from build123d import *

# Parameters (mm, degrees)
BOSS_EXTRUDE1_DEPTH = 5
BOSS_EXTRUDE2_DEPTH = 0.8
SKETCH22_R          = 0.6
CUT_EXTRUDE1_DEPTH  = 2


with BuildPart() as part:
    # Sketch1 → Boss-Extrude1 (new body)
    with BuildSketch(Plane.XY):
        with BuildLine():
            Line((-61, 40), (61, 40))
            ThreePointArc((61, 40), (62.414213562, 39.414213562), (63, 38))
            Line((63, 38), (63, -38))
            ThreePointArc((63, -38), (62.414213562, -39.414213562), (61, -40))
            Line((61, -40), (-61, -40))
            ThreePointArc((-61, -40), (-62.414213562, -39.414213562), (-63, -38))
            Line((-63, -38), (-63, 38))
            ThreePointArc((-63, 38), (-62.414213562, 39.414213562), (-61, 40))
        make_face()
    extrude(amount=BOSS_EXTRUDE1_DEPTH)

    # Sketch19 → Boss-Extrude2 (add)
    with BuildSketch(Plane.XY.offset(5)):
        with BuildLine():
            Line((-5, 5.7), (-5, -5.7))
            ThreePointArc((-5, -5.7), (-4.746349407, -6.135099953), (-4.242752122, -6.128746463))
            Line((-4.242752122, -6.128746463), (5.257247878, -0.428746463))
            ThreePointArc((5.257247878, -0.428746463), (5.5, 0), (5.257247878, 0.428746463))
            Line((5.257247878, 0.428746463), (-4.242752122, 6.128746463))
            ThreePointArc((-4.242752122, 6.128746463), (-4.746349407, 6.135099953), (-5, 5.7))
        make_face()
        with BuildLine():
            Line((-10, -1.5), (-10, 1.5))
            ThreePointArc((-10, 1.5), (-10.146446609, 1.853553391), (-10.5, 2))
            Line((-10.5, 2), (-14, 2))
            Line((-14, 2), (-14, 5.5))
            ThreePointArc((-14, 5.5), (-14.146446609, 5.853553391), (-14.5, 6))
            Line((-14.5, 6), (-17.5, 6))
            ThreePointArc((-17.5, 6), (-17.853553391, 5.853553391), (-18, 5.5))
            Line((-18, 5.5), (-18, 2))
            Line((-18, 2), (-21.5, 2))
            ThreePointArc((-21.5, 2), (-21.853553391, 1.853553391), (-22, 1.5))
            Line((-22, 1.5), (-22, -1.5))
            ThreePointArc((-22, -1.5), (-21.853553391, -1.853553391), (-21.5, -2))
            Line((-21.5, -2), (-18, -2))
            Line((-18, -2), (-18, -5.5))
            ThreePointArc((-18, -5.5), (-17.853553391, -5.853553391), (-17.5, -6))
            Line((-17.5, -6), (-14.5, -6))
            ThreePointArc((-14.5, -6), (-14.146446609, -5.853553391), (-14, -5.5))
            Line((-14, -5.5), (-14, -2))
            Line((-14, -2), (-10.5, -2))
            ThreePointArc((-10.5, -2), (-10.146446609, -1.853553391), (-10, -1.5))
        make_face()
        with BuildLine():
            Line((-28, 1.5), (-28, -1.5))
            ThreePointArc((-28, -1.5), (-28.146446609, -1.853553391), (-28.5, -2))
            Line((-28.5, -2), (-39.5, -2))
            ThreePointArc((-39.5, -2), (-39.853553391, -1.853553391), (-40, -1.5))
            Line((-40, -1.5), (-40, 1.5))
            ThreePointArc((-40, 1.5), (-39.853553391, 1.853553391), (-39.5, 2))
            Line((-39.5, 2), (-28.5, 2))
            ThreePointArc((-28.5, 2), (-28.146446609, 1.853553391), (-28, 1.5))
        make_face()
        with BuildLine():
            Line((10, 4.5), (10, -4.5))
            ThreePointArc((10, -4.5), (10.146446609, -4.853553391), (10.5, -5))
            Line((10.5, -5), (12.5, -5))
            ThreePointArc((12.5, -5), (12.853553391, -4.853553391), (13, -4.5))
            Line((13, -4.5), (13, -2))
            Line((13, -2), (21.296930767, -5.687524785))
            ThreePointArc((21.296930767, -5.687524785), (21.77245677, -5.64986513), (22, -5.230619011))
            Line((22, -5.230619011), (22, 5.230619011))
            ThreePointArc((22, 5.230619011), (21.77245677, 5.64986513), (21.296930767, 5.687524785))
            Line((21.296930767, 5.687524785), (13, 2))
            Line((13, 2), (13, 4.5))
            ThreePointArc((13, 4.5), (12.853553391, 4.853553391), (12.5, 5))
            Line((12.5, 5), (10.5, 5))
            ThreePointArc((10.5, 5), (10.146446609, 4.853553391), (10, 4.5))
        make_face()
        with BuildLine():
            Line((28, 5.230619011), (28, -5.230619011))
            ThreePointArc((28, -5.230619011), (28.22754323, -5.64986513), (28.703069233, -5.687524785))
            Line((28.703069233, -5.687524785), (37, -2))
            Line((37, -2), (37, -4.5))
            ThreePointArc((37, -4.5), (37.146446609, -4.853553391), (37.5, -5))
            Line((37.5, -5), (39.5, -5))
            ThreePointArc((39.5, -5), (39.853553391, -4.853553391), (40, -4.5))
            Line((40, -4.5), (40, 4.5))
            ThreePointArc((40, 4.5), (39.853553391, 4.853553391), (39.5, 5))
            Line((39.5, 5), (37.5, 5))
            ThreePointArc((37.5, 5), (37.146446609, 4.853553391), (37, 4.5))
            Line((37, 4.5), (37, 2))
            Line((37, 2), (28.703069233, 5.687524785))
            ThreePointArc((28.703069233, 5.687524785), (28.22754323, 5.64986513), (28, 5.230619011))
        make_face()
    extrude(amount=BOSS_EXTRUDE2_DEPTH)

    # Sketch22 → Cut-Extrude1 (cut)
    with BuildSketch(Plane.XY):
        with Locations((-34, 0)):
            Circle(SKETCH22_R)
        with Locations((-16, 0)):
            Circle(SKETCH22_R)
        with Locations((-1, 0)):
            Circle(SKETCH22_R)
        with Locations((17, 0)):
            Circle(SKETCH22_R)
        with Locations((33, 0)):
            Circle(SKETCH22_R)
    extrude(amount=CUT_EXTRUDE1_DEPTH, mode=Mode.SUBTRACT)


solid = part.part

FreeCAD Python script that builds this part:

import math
import FreeCAD as App
import Part
import Sketcher

doc = App.newDocument("Part")
body = doc.addObject("PartDesign::Body", "Body")

sketch1 = body.newObject("Sketcher::SketchObject", "Sketch")
sketch1.AttachmentSupport = (doc.getObject("XY_Plane"), [""])
sketch1.MapMode = "FlatFace"
sketch1.addGeometry([
    Part.LineSegment(App.Vector(61, 40, 0), App.Vector(-61, 40, 0)),
    Part.ArcOfCircle(Part.Circle(App.Vector(-61, 38, 0), App.Vector(0, 0, 1), 2), math.radians(90), math.radians(180)),
    Part.LineSegment(App.Vector(-63, 38, 0), App.Vector(-63, -38, 0)),
    Part.ArcOfCircle(Part.Circle(App.Vector(-61, -38, 0), App.Vector(0, 0, 1), 2), math.radians(-180), math.radians(-90)),
    Part.LineSegment(App.Vector(-61, -40, 0), App.Vector(61, -40, 0)),
    Part.ArcOfCircle(Part.Circle(App.Vector(61, -38, 0), App.Vector(0, 0, 1), 2), math.radians(-90), math.radians(0)),
    Part.LineSegment(App.Vector(63, -38, 0), App.Vector(63, 38, 0)),
    Part.ArcOfCircle(Part.Circle(App.Vector(61, 38, 0), App.Vector(0, 0, 1), 2), math.radians(0), math.radians(90)),
], False)
sketch1.addConstraint([
    Sketcher.Constraint("Tangent", 0, 2, 1, 1),
    Sketcher.Constraint("Tangent", 1, 2, 2, 1),
    Sketcher.Constraint("Tangent", 2, 2, 3, 1),
    Sketcher.Constraint("Tangent", 3, 2, 4, 1),
    Sketcher.Constraint("Tangent", 4, 2, 5, 1),
    Sketcher.Constraint("Tangent", 5, 2, 6, 1),
    Sketcher.Constraint("Tangent", 6, 2, 7, 1),
    Sketcher.Constraint("Tangent", 7, 2, 0, 1),
    Sketcher.Constraint("Horizontal", 0),
    Sketcher.Constraint("Vertical", 2),
    Sketcher.Constraint("Horizontal", 4),
    Sketcher.Constraint("Vertical", 6),
    Sketcher.Constraint("Equal", 1, 3),
    Sketcher.Constraint("Equal", 3, 5),
    Sketcher.Constraint("Equal", 5, 7),
    Sketcher.Constraint("Symmetric", 1, 3, 5, 3, -1, 1),
    Sketcher.Constraint("Radius", 1, 2.0),
    Sketcher.Constraint("DistanceX", 0, 2, 0, 1, 122.0),
    Sketcher.Constraint("DistanceY", 2, 2, 2, 1, 76.0),
])
pad1 = body.newObject("PartDesign::Pad", "Pad")
pad1.Profile = sketch1
pad1.Length = 5

sketch2 = body.newObject("Sketcher::SketchObject", "Sketch001")
sketch2.AttachmentSupport = (doc.getObject("XY_Plane"), [""])
sketch2.MapMode = "FlatFace"
sketch2.AttachmentOffset = App.Placement(App.Vector(0, 0, 5), App.Rotation())
sketch2.addGeometry([
    Part.LineSegment(App.Vector(-5, 5.7, 0), App.Vector(-5, -5.7, 0)),
    Part.ArcOfCircle(Part.Circle(App.Vector(-4.5, -5.7, 0), App.Vector(0, 0, 1), 0.5), math.radians(-180), math.radians(-59)),
    Part.LineSegment(App.Vector(-4.24, -6.13, 0), App.Vector(5.26, -0.43, 0)),
    Part.ArcOfCircle(Part.Circle(App.Vector(5, 0, 0), App.Vector(0, 0, 1), 0.5), math.radians(-59), math.radians(59)),
    Part.LineSegment(App.Vector(5.26, 0.43, 0), App.Vector(-4.24, 6.13, 0)),
    Part.ArcOfCircle(Part.Circle(App.Vector(-4.5, 5.7, 0), App.Vector(0, 0, 1), 0.5), math.radians(59), math.radians(180)),
    Part.LineSegment(App.Vector(-10, -1.5, 0), App.Vector(-10, 1.5, 0)),
    Part.ArcOfCircle(Part.Circle(App.Vector(-10.5, 1.5, 0), App.Vector(0, 0, 1), 0.5), math.radians(0), math.radians(90)),
    Part.LineSegment(App.Vector(-10.5, 2, 0), App.Vector(-14, 2, 0)),
    Part.LineSegment(App.Vector(-14, 2, 0), App.Vector(-14, 5.5, 0)),
    Part.ArcOfCircle(Part.Circle(App.Vector(-14.5, 5.5, 0), App.Vector(0, 0, 1), 0.5), math.radians(0), math.radians(90)),
    Part.LineSegment(App.Vector(-14.5, 6, 0), App.Vector(-17.5, 6, 0)),
    Part.ArcOfCircle(Part.Circle(App.Vector(-17.5, 5.5, 0), App.Vector(0, 0, 1), 0.5), math.radians(90), math.radians(180)),
    Part.LineSegment(App.Vector(-18, 5.5, 0), App.Vector(-18, 2, 0)),
    Part.LineSegment(App.Vector(-18, 2, 0), App.Vector(-21.5, 2, 0)),
    Part.ArcOfCircle(Part.Circle(App.Vector(-21.5, 1.5, 0), App.Vector(0, 0, 1), 0.5), math.radians(90), math.radians(180)),
    Part.LineSegment(App.Vector(-22, 1.5, 0), App.Vector(-22, -1.5, 0)),
    Part.ArcOfCircle(Part.Circle(App.Vector(-21.5, -1.5, 0), App.Vector(0, 0, 1), 0.5), math.radians(180), math.radians(270)),
    Part.LineSegment(App.Vector(-21.5, -2, 0), App.Vector(-18, -2, 0)),
    Part.LineSegment(App.Vector(-18, -2, 0), App.Vector(-18, -5.5, 0)),
    Part.ArcOfCircle(Part.Circle(App.Vector(-17.5, -5.5, 0), App.Vector(0, 0, 1), 0.5), math.radians(180), math.radians(270)),
    Part.LineSegment(App.Vector(-17.5, -6, 0), App.Vector(-14.5, -6, 0)),
    Part.ArcOfCircle(Part.Circle(App.Vector(-14.5, -5.5, 0), App.Vector(0, 0, 1), 0.5), math.radians(-90), math.radians(0)),
    Part.LineSegment(App.Vector(-14, -5.5, 0), App.Vector(-14, -2, 0)),
    Part.LineSegment(App.Vector(-14, -2, 0), App.Vector(-10.5, -2, 0)),
    Part.ArcOfCircle(Part.Circle(App.Vector(-10.5, -1.5, 0), App.Vector(0, 0, 1), 0.5), math.radians(-90), math.radians(0)),
    Part.LineSegment(App.Vector(-28, -1.5, 0), App.Vector(-28, 1.5, 0)),
    Part.ArcOfCircle(Part.Circle(App.Vector(-28.5, 1.5, 0), App.Vector(0, 0, 1), 0.5), math.radians(0), math.radians(90)),
    Part.LineSegment(App.Vector(-28.5, 2, 0), App.Vector(-39.5, 2, 0)),
    Part.ArcOfCircle(Part.Circle(App.Vector(-39.5, 1.5, 0), App.Vector(0, 0, 1), 0.5), math.radians(90), math.radians(180)),
    Part.LineSegment(App.Vector(-40, 1.5, 0), App.Vector(-40, -1.5, 0)),
    Part.ArcOfCircle(Part.Circle(App.Vector(-39.5, -1.5, 0), App.Vector(0, 0, 1), 0.5), math.radians(180), math.radians(270)),
    Part.LineSegment(App.Vector(-39.5, -2, 0), App.Vector(-28.5, -2, 0)),
    Part.ArcOfCircle(Part.Circle(App.Vector(-28.5, -1.5, 0), App.Vector(0, 0, 1), 0.5), math.radians(-90), math.radians(0)),
    Part.LineSegment(App.Vector(10, 4.5, 0), App.Vector(10, -4.5, 0)),
    Part.ArcOfCircle(Part.Circle(App.Vector(10.5, -4.5, 0), App.Vector(0, 0, 1), 0.5), math.radians(180), math.radians(270)),
    Part.LineSegment(App.Vector(10.5, -5, 0), App.Vector(12.5, -5, 0)),
    Part.ArcOfCircle(Part.Circle(App.Vector(12.5, -4.5, 0), App.Vector(0, 0, 1), 0.5), math.radians(-90), math.radians(0)),
    Part.LineSegment(App.Vector(13, -4.5, 0), App.Vector(13, -2, 0)),
    Part.LineSegment(App.Vector(13, -2, 0), App.Vector(21.3, -5.69, 0)),
    Part.ArcOfCircle(Part.Circle(App.Vector(21.5, -5.23, 0), App.Vector(0, 0, 1), 0.5), math.radians(-114), math.radians(0)),
    Part.LineSegment(App.Vector(22, -5.23, 0), App.Vector(22, 5.23, 0)),
    Part.ArcOfCircle(Part.Circle(App.Vector(21.5, 5.23, 0), App.Vector(0, 0, 1), 0.5), math.radians(0), math.radians(114)),
    Part.LineSegment(App.Vector(21.3, 5.69, 0), App.Vector(13, 2, 0)),
    Part.LineSegment(App.Vector(13, 2, 0), App.Vector(13, 4.5, 0)),
    Part.ArcOfCircle(Part.Circle(App.Vector(12.5, 4.5, 0), App.Vector(0, 0, 1), 0.5), math.radians(0), math.radians(90)),
    Part.LineSegment(App.Vector(12.5, 5, 0), App.Vector(10.5, 5, 0)),
    Part.ArcOfCircle(Part.Circle(App.Vector(10.5, 4.5, 0), App.Vector(0, 0, 1), 0.5), math.radians(90), math.radians(180)),
    Part.LineSegment(App.Vector(28, 5.23, 0), App.Vector(28, -5.23, 0)),
    Part.ArcOfCircle(Part.Circle(App.Vector(28.5, -5.23, 0), App.Vector(0, 0, 1), 0.5), math.radians(180), math.radians(294)),
    Part.LineSegment(App.Vector(28.7, -5.69, 0), App.Vector(37, -2, 0)),
    Part.LineSegment(App.Vector(37, -2, 0), App.Vector(37, -4.5, 0)),
    Part.ArcOfCircle(Part.Circle(App.Vector(37.5, -4.5, 0), App.Vector(0, 0, 1), 0.5), math.radians(180), math.radians(270)),
    Part.LineSegment(App.Vector(37.5, -5, 0), App.Vector(39.5, -5, 0)),
    Part.ArcOfCircle(Part.Circle(App.Vector(39.5, -4.5, 0), App.Vector(0, 0, 1), 0.5), math.radians(-90), math.radians(0)),
    Part.LineSegment(App.Vector(40, -4.5, 0), App.Vector(40, 4.5, 0)),
    Part.ArcOfCircle(Part.Circle(App.Vector(39.5, 4.5, 0), App.Vector(0, 0, 1), 0.5), math.radians(0), math.radians(90)),
    Part.LineSegment(App.Vector(39.5, 5, 0), App.Vector(37.5, 5, 0)),
    Part.ArcOfCircle(Part.Circle(App.Vector(37.5, 4.5, 0), App.Vector(0, 0, 1), 0.5), math.radians(90), math.radians(180)),
    Part.LineSegment(App.Vector(37, 4.5, 0), App.Vector(37, 2, 0)),
    Part.LineSegment(App.Vector(37, 2, 0), App.Vector(28.7, 5.69, 0)),
    Part.ArcOfCircle(Part.Circle(App.Vector(28.5, 5.23, 0), App.Vector(0, 0, 1), 0.5), math.radians(66), math.radians(180)),
], False)
sketch2.addConstraint([
    Sketcher.Constraint("Tangent", 0, 2, 1, 1),
    Sketcher.Constraint("Tangent", 1, 2, 2, 1),
    Sketcher.Constraint("Tangent", 2, 2, 3, 1),
    Sketcher.Constraint("Tangent", 3, 2, 4, 1),
    Sketcher.Constraint("Tangent", 4, 2, 5, 1),
    Sketcher.Constraint("Tangent", 5, 2, 0, 1),
    Sketcher.Constraint("Tangent", 6, 2, 7, 1),
    Sketcher.Constraint("Tangent", 7, 2, 8, 1),
    Sketcher.Constraint("Coincident", 8, 2, 9, 1),
    Sketcher.Constraint("Tangent", 9, 2, 10, 1),
    Sketcher.Constraint("Tangent", 10, 2, 11, 1),
    Sketcher.Constraint("Tangent", 11, 2, 12, 1),
    Sketcher.Constraint("Tangent", 12, 2, 13, 1),
    Sketcher.Constraint("Coincident", 13, 2, 14, 1),
    Sketcher.Constraint("Tangent", 14, 2, 15, 1),
    Sketcher.Constraint("Tangent", 15, 2, 16, 1),
    Sketcher.Constraint("Tangent", 16, 2, 17, 1),
    Sketcher.Constraint("Tangent", 17, 2, 18, 1),
    Sketcher.Constraint("Coincident", 18, 2, 19, 1),
    Sketcher.Constraint("Tangent", 19, 2, 20, 1),
    Sketcher.Constraint("Tangent", 20, 2, 21, 1),
    Sketcher.Constraint("Tangent", 21, 2, 22, 1),
    Sketcher.Constraint("Tangent", 22, 2, 23, 1),
    Sketcher.Constraint("Coincident", 23, 2, 24, 1),
    Sketcher.Constraint("Tangent", 24, 2, 25, 1),
    Sketcher.Constraint("Tangent", 25, 2, 6, 1),
    Sketcher.Constraint("Tangent", 26, 2, 27, 1),
    Sketcher.Constraint("Tangent", 27, 2, 28, 1),
    Sketcher.Constraint("Tangent", 28, 2, 29, 1),
    Sketcher.Constraint("Tangent", 29, 2, 30, 1),
    Sketcher.Constraint("Tangent", 30, 2, 31, 1),
    Sketcher.Constraint("Tangent", 31, 2, 32, 1),
    Sketcher.Constraint("Tangent", 32, 2, 33, 1),
    Sketcher.Constraint("Tangent", 33, 2, 26, 1),
    Sketcher.Constraint("Tangent", 34, 2, 35, 1),
    Sketcher.Constraint("Tangent", 35, 2, 36, 1),
    Sketcher.Constraint("Tangent", 36, 2, 37, 1),
    Sketcher.Constraint("Tangent", 37, 2, 38, 1),
    Sketcher.Constraint("Coincident", 38, 2, 39, 1),
    Sketcher.Constraint("Tangent", 39, 2, 40, 1),
    Sketcher.Constraint("Tangent", 40, 2, 41, 1),
    Sketcher.Constraint("Tangent", 41, 2, 42, 1),
    Sketcher.Constraint("Tangent", 42, 2, 43, 1),
    Sketcher.Constraint("Coincident", 43, 2, 44, 1),
    Sketcher.Constraint("Tangent", 44, 2, 45, 1),
    Sketcher.Constraint("Tangent", 45, 2, 46, 1),
    Sketcher.Constraint("Tangent", 46, 2, 47, 1),
    Sketcher.Constraint("Tangent", 47, 2, 34, 1),
    Sketcher.Constraint("Tangent", 48, 2, 49, 1),
    Sketcher.Constraint("Tangent", 49, 2, 50, 1),
    Sketcher.Constraint("Coincident", 50, 2, 51, 1),
    Sketcher.Constraint("Tangent", 51, 2, 52, 1),
    Sketcher.Constraint("Tangent", 52, 2, 53, 1),
    Sketcher.Constraint("Tangent", 53, 2, 54, 1),
    Sketcher.Constraint("Tangent", 54, 2, 55, 1),
    Sketcher.Constraint("Tangent", 55, 2, 56, 1),
    Sketcher.Constraint("Tangent", 56, 2, 57, 1),
    Sketcher.Constraint("Tangent", 57, 2, 58, 1),
    Sketcher.Constraint("Tangent", 58, 2, 59, 1),
    Sketcher.Constraint("Coincident", 59, 2, 60, 1),
    Sketcher.Constraint("Tangent", 60, 2, 61, 1),
    Sketcher.Constraint("Tangent", 61, 2, 48, 1),
    Sketcher.Constraint("Vertical", 0),
    Sketcher.Constraint("Vertical", 6),
    Sketcher.Constraint("Horizontal", 8),
    Sketcher.Constraint("Vertical", 9),
    Sketcher.Constraint("Horizontal", 11),
    Sketcher.Constraint("Vertical", 13),
    Sketcher.Constraint("Horizontal", 14),
    Sketcher.Constraint("Vertical", 16),
    Sketcher.Constraint("Horizontal", 18),
    Sketcher.Constraint("Vertical", 19),
    Sketcher.Constraint("Horizontal", 21),
    Sketcher.Constraint("Vertical", 23),
    Sketcher.Constraint("Horizontal", 24),
    Sketcher.Constraint("Vertical", 26),
    Sketcher.Constraint("Horizontal", 28),
    Sketcher.Constraint("Vertical", 30),
    Sketcher.Constraint("Horizontal", 32),
    Sketcher.Constraint("Vertical", 34),
    Sketcher.Constraint("Horizontal", 36),
    Sketcher.Constraint("Vertical", 38),
    Sketcher.Constraint("Vertical", 41),
    Sketcher.Constraint("Vertical", 44),
    Sketcher.Constraint("Horizontal", 46),
    Sketcher.Constraint("Vertical", 48),
    Sketcher.Constraint("Vertical", 51),
    Sketcher.Constraint("Horizontal", 53),
    Sketcher.Constraint("Vertical", 55),
    Sketcher.Constraint("Horizontal", 57),
    Sketcher.Constraint("Vertical", 59),
    Sketcher.Constraint("Equal", 1, 3),
    Sketcher.Constraint("Equal", 3, 5),
    Sketcher.Constraint("Equal", 5, 7),
    Sketcher.Constraint("Equal", 7, 10),
    Sketcher.Constraint("Equal", 10, 12),
    Sketcher.Constraint("Equal", 12, 15),
    Sketcher.Constraint("Equal", 15, 17),
    Sketcher.Constraint("Equal", 17, 20),
    Sketcher.Constraint("Equal", 20, 22),
    Sketcher.Constraint("Equal", 22, 25),
    Sketcher.Constraint("Equal", 25, 27),
    Sketcher.Constraint("Equal", 27, 29),
    Sketcher.Constraint("Equal", 29, 31),
    Sketcher.Constraint("Equal", 31, 33),
    Sketcher.Constraint("Equal", 33, 35),
    Sketcher.Constraint("Equal", 35, 37),
    Sketcher.Constraint("Equal", 37, 40),
    Sketcher.Constraint("Equal", 40, 42),
    Sketcher.Constraint("Equal", 42, 45),
    Sketcher.Constraint("Equal", 45, 47),
    Sketcher.Constraint("Equal", 47, 49),
    Sketcher.Constraint("Equal", 49, 52),
    Sketcher.Constraint("Equal", 52, 54),
    Sketcher.Constraint("Equal", 54, 56),
    Sketcher.Constraint("Equal", 56, 58),
    Sketcher.Constraint("Equal", 58, 61),
    Sketcher.Constraint("Symmetric", 12, 3, 20, 3, -1),
    Sketcher.Constraint("Symmetric", 37, 3, 45, 3, -1),
    Sketcher.Constraint("Symmetric", 52, 3, 58, 3, -1),
    Sketcher.Constraint("Symmetric", 2, 2, 3, 2, -1),
    Sketcher.Constraint("Symmetric", 8, 2, 23, 2, -1),
    Sketcher.Constraint("Symmetric", 39, 2, 42, 2, -1),
    Sketcher.Constraint("Symmetric", 49, 2, 60, 2, -1),
    Sketcher.Constraint("Parallel", 43, 50),
    Sketcher.Constraint("Horizontal", 7, 3, 15, 3),
    Sketcher.Constraint("Horizontal", 17, 3, 25, 3),
    Sketcher.Constraint("Horizontal", 15, 3, 27, 3),
    Sketcher.Constraint("Horizontal", 25, 3, 31, 3),
    Sketcher.Constraint("Horizontal", 40, 3, 49, 3),
    Sketcher.Constraint("Horizontal", 37, 3, 52, 3),
    Sketcher.Constraint("Horizontal", 32, 2, 38, 2),
    Sketcher.Constraint("Horizontal", 38, 2, 50, 2),
    Sketcher.Constraint("Equal", 8, 14),
    Sketcher.Constraint("Equal", 46, 53),
    Sketcher.Constraint("Equal", 21, 6),
    Sketcher.Constraint("Equal", 24, 9),
    Sketcher.Constraint("Radius", 1, 0.5),
    Sketcher.Constraint("DistanceX", 11, 2, 11, 1, 3.0),
    Sketcher.Constraint("DistanceX", 28, 2, 28, 1, 11.0),
    Sketcher.Constraint("DistanceX", 36, 1, 36, 2, 2.0),
    Sketcher.Constraint("DistanceY", 34, 2, 34, 1, 9.0),
    Sketcher.Constraint("DistanceX", 8, 2, 8, 1, 3.5),
    Sketcher.Constraint("DistanceY", 0, 2, 0, 1, 11.4),
    Sketcher.Constraint("DistanceX", -1, 1, 3, 3, 5.0),
    Sketcher.Constraint("DistanceX", 0, 2, -1, 1, 5.0),
    Sketcher.Constraint("DistanceX", 6, 2, -1, 1, 10.0),
    Sketcher.Constraint("DistanceX", 26, 2, -1, 1, 28.0),
    Sketcher.Constraint("DistanceX", -1, 1, 34, 2, 10.0),
    Sketcher.Constraint("DistanceX", -1, 1, 40, 2, 22.0),
    Sketcher.Constraint("DistanceX", -1, 1, 48, 2, 28.0),
    Sketcher.Constraint("DistanceY", 41, 1, 41, 2, 10.461238),
])
pad2 = body.newObject("PartDesign::Pad", "Pad001")
pad2.Profile = sketch2
pad2.Length = 0.8

sketch3 = body.newObject("Sketcher::SketchObject", "Sketch002")
sketch3.AttachmentSupport = (doc.getObject("XY_Plane"), [""])
sketch3.MapMode = "FlatFace"
sketch3.addGeometry([
    Part.Circle(App.Vector(-34, 0, 0), App.Vector(0, 0, 1), 0.6),
    Part.Circle(App.Vector(-16, 0, 0), App.Vector(0, 0, 1), 0.6),
    Part.Circle(App.Vector(-1, 0, 0), App.Vector(0, 0, 1), 0.6),
    Part.Circle(App.Vector(17, 0, 0), App.Vector(0, 0, 1), 0.6),
    Part.Circle(App.Vector(33, 0, 0), App.Vector(0, 0, 1), 0.6),
], False)
sketch3.addConstraint([
    Sketcher.Constraint("Equal", 0, 1),
    Sketcher.Constraint("Equal", 1, 2),
    Sketcher.Constraint("Equal", 2, 3),
    Sketcher.Constraint("Equal", 3, 4),
    Sketcher.Constraint("PointOnObject", 0, 3, -1),
    Sketcher.Constraint("PointOnObject", 1, 3, -1),
    Sketcher.Constraint("PointOnObject", 2, 3, -1),
    Sketcher.Constraint("PointOnObject", 3, 3, -1),
    Sketcher.Constraint("PointOnObject", 4, 3, -1),
    Sketcher.Constraint("Diameter", 0, 1.2),
    Sketcher.Constraint("DistanceX", 0, 3, -1, 1, 34.0),
    Sketcher.Constraint("DistanceX", 1, 3, -1, 1, 16.0),
    Sketcher.Constraint("DistanceX", 2, 3, -1, 1, 1.0),
    Sketcher.Constraint("DistanceX", -1, 1, 3, 3, 17.0),
    Sketcher.Constraint("DistanceX", -1, 1, 4, 3, 33.0),
])
pocket1 = body.newObject("PartDesign::Pocket", "Pocket")
pocket1.Profile = sketch3
pocket1.Length = 2
pocket1.Reversed = True

doc.recompute()
